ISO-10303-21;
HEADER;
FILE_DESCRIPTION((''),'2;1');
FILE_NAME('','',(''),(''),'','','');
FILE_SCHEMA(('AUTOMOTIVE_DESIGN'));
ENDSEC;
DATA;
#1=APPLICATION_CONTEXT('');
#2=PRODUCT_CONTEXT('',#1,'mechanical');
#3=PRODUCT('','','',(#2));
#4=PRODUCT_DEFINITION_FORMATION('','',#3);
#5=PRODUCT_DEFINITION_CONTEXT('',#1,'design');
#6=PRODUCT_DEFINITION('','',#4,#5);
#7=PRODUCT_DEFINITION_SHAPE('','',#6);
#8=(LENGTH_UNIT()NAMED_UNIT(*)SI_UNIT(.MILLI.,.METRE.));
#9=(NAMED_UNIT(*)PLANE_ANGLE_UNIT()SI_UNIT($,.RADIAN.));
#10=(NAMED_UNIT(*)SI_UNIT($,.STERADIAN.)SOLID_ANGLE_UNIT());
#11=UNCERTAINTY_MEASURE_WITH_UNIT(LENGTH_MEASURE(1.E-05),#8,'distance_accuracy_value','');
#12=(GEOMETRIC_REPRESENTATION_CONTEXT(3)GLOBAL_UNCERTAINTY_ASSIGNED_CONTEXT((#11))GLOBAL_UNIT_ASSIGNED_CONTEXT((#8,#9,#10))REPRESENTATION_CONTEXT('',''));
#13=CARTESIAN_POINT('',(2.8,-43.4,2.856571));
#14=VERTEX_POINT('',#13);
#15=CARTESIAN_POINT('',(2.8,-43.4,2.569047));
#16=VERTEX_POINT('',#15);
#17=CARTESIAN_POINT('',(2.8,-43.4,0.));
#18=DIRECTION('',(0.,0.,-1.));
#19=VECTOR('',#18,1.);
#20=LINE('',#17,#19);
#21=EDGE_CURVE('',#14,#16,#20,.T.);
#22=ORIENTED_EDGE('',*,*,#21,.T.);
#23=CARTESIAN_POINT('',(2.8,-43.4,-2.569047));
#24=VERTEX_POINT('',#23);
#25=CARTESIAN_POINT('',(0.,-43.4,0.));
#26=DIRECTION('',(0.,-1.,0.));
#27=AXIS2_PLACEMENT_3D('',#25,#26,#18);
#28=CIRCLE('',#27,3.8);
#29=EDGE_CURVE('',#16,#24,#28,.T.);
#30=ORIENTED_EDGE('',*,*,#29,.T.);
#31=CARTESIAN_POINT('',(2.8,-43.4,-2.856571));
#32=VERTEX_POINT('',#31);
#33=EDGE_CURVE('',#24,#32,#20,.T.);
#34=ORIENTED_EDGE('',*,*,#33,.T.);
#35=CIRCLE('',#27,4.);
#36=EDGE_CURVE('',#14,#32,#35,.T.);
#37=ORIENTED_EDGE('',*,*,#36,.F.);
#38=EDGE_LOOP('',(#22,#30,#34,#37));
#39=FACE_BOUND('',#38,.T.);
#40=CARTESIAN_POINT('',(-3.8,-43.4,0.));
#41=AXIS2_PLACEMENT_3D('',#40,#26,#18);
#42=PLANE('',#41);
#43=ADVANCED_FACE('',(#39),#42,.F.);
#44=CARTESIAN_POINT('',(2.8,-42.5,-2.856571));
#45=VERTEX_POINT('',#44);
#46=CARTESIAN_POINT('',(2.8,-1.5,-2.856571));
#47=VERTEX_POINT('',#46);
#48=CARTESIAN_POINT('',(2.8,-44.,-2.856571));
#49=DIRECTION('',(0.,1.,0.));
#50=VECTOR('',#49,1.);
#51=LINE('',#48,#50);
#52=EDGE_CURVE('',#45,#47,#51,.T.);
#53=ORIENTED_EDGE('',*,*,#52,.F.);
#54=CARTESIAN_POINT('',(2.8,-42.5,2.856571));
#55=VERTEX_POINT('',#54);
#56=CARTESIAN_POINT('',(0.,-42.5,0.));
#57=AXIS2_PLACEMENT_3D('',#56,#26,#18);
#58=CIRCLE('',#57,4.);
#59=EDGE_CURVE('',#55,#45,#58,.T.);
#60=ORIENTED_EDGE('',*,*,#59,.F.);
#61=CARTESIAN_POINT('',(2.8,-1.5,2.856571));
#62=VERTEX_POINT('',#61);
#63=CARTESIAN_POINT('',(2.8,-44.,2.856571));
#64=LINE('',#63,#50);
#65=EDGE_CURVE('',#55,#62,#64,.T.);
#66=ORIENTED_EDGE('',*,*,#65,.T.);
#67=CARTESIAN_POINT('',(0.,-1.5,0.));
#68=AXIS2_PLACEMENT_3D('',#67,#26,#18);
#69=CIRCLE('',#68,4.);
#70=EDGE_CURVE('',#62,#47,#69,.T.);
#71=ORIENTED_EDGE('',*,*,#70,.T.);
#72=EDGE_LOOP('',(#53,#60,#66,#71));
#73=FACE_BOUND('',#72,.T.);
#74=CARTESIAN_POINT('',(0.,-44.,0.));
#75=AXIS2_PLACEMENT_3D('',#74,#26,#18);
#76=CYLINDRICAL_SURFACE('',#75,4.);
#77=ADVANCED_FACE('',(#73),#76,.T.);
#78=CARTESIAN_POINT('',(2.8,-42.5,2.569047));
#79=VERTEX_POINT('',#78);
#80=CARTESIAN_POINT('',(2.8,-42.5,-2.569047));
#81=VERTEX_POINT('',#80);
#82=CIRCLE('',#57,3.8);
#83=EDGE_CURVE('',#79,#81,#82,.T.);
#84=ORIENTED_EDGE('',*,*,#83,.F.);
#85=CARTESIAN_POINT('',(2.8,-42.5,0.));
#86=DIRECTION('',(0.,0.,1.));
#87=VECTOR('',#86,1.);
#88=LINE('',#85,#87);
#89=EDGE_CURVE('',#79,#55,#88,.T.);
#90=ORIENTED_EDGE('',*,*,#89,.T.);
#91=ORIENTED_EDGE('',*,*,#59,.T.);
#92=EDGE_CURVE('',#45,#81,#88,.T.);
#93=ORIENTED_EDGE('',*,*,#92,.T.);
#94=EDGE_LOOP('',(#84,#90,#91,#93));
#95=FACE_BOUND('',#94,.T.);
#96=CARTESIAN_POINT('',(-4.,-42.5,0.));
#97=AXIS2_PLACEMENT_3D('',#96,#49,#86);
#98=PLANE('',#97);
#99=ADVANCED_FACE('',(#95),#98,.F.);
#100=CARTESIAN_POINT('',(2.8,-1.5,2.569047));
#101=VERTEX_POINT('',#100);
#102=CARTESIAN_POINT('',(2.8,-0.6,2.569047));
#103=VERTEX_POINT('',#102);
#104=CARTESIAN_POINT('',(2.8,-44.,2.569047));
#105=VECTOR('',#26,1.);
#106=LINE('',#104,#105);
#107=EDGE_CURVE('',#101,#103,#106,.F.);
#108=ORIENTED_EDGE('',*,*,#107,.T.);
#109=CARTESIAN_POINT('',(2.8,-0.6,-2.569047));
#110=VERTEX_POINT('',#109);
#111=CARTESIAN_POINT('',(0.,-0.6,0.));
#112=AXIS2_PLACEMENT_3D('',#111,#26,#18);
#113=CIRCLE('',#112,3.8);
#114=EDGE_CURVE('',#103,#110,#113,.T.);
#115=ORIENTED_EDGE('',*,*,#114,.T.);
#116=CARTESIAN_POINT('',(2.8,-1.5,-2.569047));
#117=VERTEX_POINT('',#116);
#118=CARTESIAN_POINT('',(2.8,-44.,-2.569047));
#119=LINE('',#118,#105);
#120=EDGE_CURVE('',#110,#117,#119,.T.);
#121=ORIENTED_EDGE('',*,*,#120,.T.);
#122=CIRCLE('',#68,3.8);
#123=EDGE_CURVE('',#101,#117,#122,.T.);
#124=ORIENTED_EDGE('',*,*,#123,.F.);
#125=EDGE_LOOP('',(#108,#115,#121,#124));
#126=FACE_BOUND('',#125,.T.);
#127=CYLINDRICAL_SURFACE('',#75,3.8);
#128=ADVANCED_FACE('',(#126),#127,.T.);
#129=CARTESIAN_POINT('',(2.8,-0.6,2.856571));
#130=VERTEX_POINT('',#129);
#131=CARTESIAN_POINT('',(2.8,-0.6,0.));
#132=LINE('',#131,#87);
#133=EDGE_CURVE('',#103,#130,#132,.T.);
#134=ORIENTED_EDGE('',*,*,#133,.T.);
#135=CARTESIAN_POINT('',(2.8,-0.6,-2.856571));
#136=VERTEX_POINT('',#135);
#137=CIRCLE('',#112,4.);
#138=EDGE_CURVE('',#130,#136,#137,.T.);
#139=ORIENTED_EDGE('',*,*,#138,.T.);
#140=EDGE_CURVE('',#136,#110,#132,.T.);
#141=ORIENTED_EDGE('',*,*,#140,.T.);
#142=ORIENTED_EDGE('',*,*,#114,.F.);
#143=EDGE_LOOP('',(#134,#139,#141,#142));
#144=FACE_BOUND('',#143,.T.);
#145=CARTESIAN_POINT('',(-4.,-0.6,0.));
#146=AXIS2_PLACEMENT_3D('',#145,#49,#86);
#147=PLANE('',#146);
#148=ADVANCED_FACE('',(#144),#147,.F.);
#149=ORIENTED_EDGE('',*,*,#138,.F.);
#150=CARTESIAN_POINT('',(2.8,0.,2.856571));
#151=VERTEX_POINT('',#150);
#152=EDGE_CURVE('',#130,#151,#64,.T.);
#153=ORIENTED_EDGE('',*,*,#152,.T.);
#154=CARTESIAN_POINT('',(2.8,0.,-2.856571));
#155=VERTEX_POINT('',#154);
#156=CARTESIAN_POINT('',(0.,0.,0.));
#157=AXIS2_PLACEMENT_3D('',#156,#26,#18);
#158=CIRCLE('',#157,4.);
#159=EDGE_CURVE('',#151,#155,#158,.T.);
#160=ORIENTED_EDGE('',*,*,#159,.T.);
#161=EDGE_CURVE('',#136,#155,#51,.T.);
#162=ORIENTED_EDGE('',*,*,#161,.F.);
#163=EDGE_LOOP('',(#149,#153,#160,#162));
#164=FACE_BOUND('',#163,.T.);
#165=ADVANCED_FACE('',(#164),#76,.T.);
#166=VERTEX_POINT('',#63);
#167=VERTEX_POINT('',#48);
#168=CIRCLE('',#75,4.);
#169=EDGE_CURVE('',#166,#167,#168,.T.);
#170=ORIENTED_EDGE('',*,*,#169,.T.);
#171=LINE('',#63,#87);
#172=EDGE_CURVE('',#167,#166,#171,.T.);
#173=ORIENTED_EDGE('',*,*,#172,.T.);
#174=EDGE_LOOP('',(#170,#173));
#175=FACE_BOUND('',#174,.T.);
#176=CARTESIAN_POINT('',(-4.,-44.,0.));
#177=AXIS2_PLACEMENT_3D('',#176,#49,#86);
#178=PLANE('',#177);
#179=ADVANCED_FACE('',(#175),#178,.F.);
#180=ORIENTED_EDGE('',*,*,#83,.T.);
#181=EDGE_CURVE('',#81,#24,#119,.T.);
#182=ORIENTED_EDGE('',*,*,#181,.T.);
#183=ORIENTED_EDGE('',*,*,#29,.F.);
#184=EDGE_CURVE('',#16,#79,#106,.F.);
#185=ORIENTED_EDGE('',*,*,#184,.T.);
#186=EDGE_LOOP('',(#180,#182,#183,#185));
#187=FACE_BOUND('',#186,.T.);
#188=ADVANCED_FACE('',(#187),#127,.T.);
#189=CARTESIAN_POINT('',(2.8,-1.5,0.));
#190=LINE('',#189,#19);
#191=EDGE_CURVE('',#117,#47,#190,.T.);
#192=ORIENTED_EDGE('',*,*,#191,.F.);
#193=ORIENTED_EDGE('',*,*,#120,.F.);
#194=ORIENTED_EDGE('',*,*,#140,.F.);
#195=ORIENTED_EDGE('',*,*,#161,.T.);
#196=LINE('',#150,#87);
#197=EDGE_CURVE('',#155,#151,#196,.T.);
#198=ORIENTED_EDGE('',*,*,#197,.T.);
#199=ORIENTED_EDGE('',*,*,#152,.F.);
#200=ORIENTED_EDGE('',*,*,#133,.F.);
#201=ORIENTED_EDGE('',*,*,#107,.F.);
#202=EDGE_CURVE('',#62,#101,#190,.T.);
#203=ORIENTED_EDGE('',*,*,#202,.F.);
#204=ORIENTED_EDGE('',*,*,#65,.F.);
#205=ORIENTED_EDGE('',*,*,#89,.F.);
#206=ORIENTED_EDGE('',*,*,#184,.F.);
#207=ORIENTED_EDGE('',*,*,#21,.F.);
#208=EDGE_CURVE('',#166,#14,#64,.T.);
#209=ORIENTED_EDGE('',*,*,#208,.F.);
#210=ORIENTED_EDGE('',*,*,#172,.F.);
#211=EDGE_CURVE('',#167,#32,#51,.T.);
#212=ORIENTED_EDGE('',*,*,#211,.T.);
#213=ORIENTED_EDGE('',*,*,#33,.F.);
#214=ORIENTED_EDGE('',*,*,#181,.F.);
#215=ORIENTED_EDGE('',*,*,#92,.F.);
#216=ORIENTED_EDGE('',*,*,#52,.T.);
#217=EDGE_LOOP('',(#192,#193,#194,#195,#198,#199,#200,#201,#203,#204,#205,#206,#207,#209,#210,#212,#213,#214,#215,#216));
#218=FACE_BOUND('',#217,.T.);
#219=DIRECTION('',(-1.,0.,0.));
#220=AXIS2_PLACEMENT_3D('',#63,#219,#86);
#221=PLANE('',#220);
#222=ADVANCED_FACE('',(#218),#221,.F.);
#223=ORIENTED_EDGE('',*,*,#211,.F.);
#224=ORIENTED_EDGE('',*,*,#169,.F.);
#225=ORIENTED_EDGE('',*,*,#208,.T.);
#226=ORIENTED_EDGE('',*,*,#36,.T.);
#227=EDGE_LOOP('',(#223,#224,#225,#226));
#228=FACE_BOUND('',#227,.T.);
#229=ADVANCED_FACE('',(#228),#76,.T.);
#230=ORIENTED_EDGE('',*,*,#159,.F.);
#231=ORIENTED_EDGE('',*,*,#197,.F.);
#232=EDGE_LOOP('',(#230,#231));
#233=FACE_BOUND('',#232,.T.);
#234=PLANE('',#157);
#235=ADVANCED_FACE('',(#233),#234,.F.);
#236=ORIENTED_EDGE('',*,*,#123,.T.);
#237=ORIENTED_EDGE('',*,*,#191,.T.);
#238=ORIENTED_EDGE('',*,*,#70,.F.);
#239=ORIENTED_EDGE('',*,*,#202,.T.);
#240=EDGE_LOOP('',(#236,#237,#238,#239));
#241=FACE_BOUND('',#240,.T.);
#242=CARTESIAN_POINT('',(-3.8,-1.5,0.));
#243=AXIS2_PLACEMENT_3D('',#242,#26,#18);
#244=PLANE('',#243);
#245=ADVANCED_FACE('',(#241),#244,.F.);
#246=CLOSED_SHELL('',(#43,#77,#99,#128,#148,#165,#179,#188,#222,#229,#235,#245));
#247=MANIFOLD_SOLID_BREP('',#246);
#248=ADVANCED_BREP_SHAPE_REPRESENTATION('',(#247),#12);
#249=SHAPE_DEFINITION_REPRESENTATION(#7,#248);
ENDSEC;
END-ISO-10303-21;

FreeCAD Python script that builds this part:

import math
import FreeCAD as App
import Part
import Sketcher


def add_polygon(sketch, points):
    """Adds a closed chain of lines whose ends are joined by coincident constraints."""
    first, n = sketch.GeometryCount, len(points)
    for a, b in zip(points, points[1:] + points[:1]):
        sketch.addGeometry(Part.LineSegment(App.Vector(*a, 0), App.Vector(*b, 0)), False)
    for i in range(n):
        sketch.addConstraint(Sketcher.Constraint("Coincident", first + i, 2, first + (i + 1) % n, 1))

doc = App.newDocument("Part")
body = doc.addObject("PartDesign::Body", "Body")

sketch1 = body.newObject("Sketcher::SketchObject", "Sketch")
sketch1.AttachmentSupport = (doc.getObject("XY_Plane"), [""])
sketch1.MapMode = "FlatFace"
add_polygon(sketch1, [(0, 0), (-4, 0), (-4, -0.6), (-3.8, -0.6), (-3.8, -1.5), (-4, -1.5), (-4, -42.5), (-3.8, -42.5), (-3.8, -43.4), (-4, -43.4), (-4, -44), (0, -44)])
sketch1.addConstraint([
    Sketcher.Constraint("Horizontal", 0),
    Sketcher.Constraint("Vertical", 1),
    Sketcher.Constraint("Horizontal", 2),
    Sketcher.Constraint("Vertical", 3),
    Sketcher.Constraint("Horizontal", 4),
    Sketcher.Constraint("Vertical", 5),
    Sketcher.Constraint("Horizontal", 6),
    Sketcher.Constraint("Vertical", 7),
    Sketcher.Constraint("Horizontal", 8),
    Sketcher.Constraint("Vertical", 9),
    Sketcher.Constraint("Horizontal", 10),
    Sketcher.Constraint("Vertical", 11),
    Sketcher.Constraint("Coincident", 11, 2, -1, 1),
    Sketcher.Constraint("Vertical", 1, 2, 4, 2),
    Sketcher.Constraint("Vertical", 3, 2, 6, 2),
    Sketcher.Constraint("Vertical", 5, 2, 8, 2),
    Sketcher.Constraint("Equal", 3, 7),
    Sketcher.Constraint("Equal", 1, 9),
    Sketcher.Constraint("DistanceX", 0, 2, 0, 1, 4.0),
    Sketcher.Constraint("DistanceY", 5, 2, 5, 1, 41.0),
    Sketcher.Constraint("DistanceY", 11, 1, 11, 2, 44.0),
    Sketcher.Constraint("DistanceX", 2, 1, 2, 2, 0.2),
    Sketcher.Constraint("DistanceY", 1, 2, 1, 1, 0.6),
])
revolution = body.newObject("PartDesign::Revolution", "Revolution")
revolution.Profile = sketch1
revolution.ReferenceAxis = (sketch1, ["V_Axis"])
revolution.Angle = 360

sketch2 = body.newObject("Sketcher::SketchObject", "Sketch001")
sketch2.AttachmentSupport = (doc.getObject("XZ_Plane"), [""])
sketch2.MapMode = "FlatFace"
sketch2.addGeometry([
    Part.LineSegment(App.Vector(2.8, -2.9, 0), App.Vector(2.8, 2.9, 0)),
    Part.ArcOfCircle(Part.Circle(App.Vector(0, 0, 0), App.Vector(0, 0, 1), 4), math.radians(-46), math.radians(46)),
], False)
sketch2.addConstraint([
    Sketcher.Constraint("Coincident", 0, 1, 1, 1),
    Sketcher.Constraint("Coincident", 1, 2, 0, 2),
    Sketcher.Constraint("Vertical", 0),
    Sketcher.Constraint("Coincident", 1, 3, -1, 1),
    Sketcher.Constraint("Radius", 1, 4.0),
    Sketcher.Constraint("DistanceX", -1, 1, 0, 1, 2.8),
])
pocket1 = body.newObject("PartDesign::Pocket", "Pocket")
pocket1.Profile = sketch2
pocket1.Type = "ThroughAll"
pocket1.Reversed = True

doc.recompute()
